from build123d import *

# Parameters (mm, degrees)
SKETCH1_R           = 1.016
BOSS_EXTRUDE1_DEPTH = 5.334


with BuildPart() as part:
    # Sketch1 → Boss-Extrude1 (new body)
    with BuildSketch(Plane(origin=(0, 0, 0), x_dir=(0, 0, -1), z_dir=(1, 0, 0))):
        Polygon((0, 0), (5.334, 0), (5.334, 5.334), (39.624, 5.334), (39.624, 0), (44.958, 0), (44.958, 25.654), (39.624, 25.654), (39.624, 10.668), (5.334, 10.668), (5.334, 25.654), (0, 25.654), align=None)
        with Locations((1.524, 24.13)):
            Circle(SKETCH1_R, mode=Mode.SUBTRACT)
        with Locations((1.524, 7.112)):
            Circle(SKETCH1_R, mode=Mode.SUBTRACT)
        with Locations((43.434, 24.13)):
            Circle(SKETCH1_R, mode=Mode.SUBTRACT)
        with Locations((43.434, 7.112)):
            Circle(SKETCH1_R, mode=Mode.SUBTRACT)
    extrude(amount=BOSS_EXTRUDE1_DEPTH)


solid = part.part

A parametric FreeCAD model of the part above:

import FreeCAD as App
import Part
import Sketcher

V = App.Vector
Q = App.Units.Quantity

doc = App.newDocument("Part")
body = doc.addObject("PartDesign::Body", "Body")

sketch1 = body.newObject("Sketcher::SketchObject", "Sketch")
sketch1.AttachmentSupport = (doc.getObject("YZ_Plane"), [""])
sketch1.MapMode = "FlatFace"
sketch1.addGeometry(Part.LineSegment(V(0, 0, 0), V(0, -5.3, 0)), False)
sketch1.addGeometry(Part.LineSegment(V(0, -5.3, 0), V(5.3, -5.3, 0)), False)
sketch1.addGeometry(Part.LineSegment(V(5.3, -5.3, 0), V(5.3, -39.6, 0)), False)
sketch1.addGeometry(Part.LineSegment(V(5.3, -39.6, 0), V(0, -39.6, 0)), False)
sketch1.addGeometry(Part.LineSegment(V(0, -39.6, 0), V(0, -45, 0)), False)
sketch1.addGeometry(Part.LineSegment(V(0, -45, 0), V(25.7, -45, 0)), False)
sketch1.addGeometry(Part.LineSegment(V(25.7, -45, 0), V(25.7, -39.6, 0)), False)
sketch1.addGeometry(Part.LineSegment(V(25.7, -39.6, 0), V(10.7, -39.6, 0)), False)
sketch1.addGeometry(Part.LineSegment(V(10.7, -39.6, 0), V(10.7, -5.3, 0)), False)
sketch1.addGeometry(Part.LineSegment(V(10.7, -5.3, 0), V(25.7, -5.3, 0)), False)
sketch1.addGeometry(Part.LineSegment(V(25.7, -5.3, 0), V(25.7, 0, 0)), False)
sketch1.addGeometry(Part.LineSegment(V(25.7, 0, 0), V(0, 0, 0)), False)
sketch1.addGeometry(Part.Circle(V(7.1, -1.5, 0), V(0, 0, 1), 1), False)
sketch1.addGeometry(Part.Circle(V(7.1, -43.4, 0), V(0, 0, 1), 1), False)
sketch1.addGeometry(Part.Circle(V(24.1, -1.5, 0), V(0, 0, 1), 1), False)
sketch1.addGeometry(Part.Circle(V(24.1, -43.4, 0), V(0, 0, 1), 1), False)
sketch1.addConstraint(Sketcher.Constraint("Coincident", 0, 2, 1, 1))
sketch1.addConstraint(Sketcher.Constraint("Coincident", 1, 2, 2, 1))
sketch1.addConstraint(Sketcher.Constraint("Coincident", 2, 2, 3, 1))
sketch1.addConstraint(Sketcher.Constraint("Coincident", 3, 2, 4, 1))
sketch1.addConstraint(Sketcher.Constraint("Coincident", 4, 2, 5, 1))
sketch1.addConstraint(Sketcher.Constraint("Coincident", 5, 2, 6, 1))
sketch1.addConstraint(Sketcher.Constraint("Coincident", 6, 2, 7, 1))
sketch1.addConstraint(Sketcher.Constraint("Coincident", 7, 2, 8, 1))
sketch1.addConstraint(Sketcher.Constraint("Coincident", 8, 2, 9, 1))
sketch1.addConstraint(Sketcher.Constraint("Coincident", 9, 2, 10, 1))
sketch1.addConstraint(Sketcher.Constraint("Coincident", 10, 2, 11, 1))
sketch1.addConstraint(Sketcher.Constraint("Coincident", 11, 2, 0, 1))
sketch1.addConstraint(Sketcher.Constraint("Vertical", 0))
sketch1.addConstraint(Sketcher.Constraint("Horizontal", 1))
sketch1.addConstraint(Sketcher.Constraint("Vertical", 2))
sketch1.addConstraint(Sketcher.Constraint("Horizontal", 3))
sketch1.addConstraint(Sketcher.Constraint("Vertical", 4))
sketch1.addConstraint(Sketcher.Constraint("Horizontal", 5))
sketch1.addConstraint(Sketcher.Constraint("Vertical", 6))
sketch1.addConstraint(Sketcher.Constraint("Horizontal", 7))
sketch1.addConstraint(Sketcher.Constraint("Vertical", 8))
sketch1.addConstraint(Sketcher.Constraint("Horizontal", 9))
sketch1.addConstraint(Sketcher.Constraint("Vertical", 10))
sketch1.addConstraint(Sketcher.Constraint("Horizontal", 11))
sketch1.addConstraint(Sketcher.Constraint("Coincident", 11, 2, -1, 1))
sketch1.addConstraint(Sketcher.Constraint("Equal", 12, 13))
sketch1.addConstraint(Sketcher.Constraint("Equal", 13, 14))
sketch1.addConstraint(Sketcher.Constraint("Equal", 14, 15))
sketch1.addConstraint(Sketcher.Constraint("PointOnObject", 3, 2, -2))
sketch1.addConstraint(Sketcher.Constraint("Horizontal", 12, 3, 14, 3))
sketch1.addConstraint(Sketcher.Constraint("Horizontal", 13, 3, 15, 3))
sketch1.addConstraint(Sketcher.Constraint("Horizontal", 3, 2, 6, 2))
sketch1.addConstraint(Sketcher.Constraint("Horizontal", 1, 2, 8, 2))
sketch1.addConstraint(Sketcher.Constraint("Vertical", 12, 3, 13, 3))
sketch1.addConstraint(Sketcher.Constraint("Vertical", 14, 3, 15, 3))
sketch1.addConstraint(Sketcher.Constraint("Vertical", 6, 2, 9, 2))
sketch1.addConstraint(Sketcher.Constraint("Equal", 3, 0))
sketch1.addConstraint(Sketcher.Constraint("Equal", 0, 4))
sketch1.addConstraint(Sketcher.Constraint("Diameter", 12, Q("0.08 in")))
sketch1.addConstraint(Sketcher.Constraint("DistanceX", 1, 1, 1, 2, Q("0.21 in")))
sketch1.addConstraint(Sketcher.Constraint("DistanceX", 5, 1, 5, 2, Q("1.01 in")))
sketch1.addConstraint(Sketcher.Constraint("DistanceX", 7, 2, 7, 1, Q("0.59 in")))
sketch1.addConstraint(Sketcher.Constraint("DistanceY", 2, 2, 2, 1, Q("1.35 in")))
sketch1.addConstraint(Sketcher.Constraint("DistanceY", 13, 3, 0, 2, Q("1.5 in")))
sketch1.addConstraint(Sketcher.Constraint("DistanceY", 2, 2, 12, 3, Q("1.5 in")))
sketch1.addConstraint(Sketcher.Constraint("DistanceX", -1, 1, 12, 3, Q("0.28 in")))
sketch1.addConstraint(Sketcher.Constraint("DistanceX", -1, 1, 14, 3, Q("0.95 in")))
pad1 = body.newObject("PartDesign::Pad", "Pad")
pad1.Profile = sketch1
pad1.Length = Q("0.21 in")

doc.recompute()
